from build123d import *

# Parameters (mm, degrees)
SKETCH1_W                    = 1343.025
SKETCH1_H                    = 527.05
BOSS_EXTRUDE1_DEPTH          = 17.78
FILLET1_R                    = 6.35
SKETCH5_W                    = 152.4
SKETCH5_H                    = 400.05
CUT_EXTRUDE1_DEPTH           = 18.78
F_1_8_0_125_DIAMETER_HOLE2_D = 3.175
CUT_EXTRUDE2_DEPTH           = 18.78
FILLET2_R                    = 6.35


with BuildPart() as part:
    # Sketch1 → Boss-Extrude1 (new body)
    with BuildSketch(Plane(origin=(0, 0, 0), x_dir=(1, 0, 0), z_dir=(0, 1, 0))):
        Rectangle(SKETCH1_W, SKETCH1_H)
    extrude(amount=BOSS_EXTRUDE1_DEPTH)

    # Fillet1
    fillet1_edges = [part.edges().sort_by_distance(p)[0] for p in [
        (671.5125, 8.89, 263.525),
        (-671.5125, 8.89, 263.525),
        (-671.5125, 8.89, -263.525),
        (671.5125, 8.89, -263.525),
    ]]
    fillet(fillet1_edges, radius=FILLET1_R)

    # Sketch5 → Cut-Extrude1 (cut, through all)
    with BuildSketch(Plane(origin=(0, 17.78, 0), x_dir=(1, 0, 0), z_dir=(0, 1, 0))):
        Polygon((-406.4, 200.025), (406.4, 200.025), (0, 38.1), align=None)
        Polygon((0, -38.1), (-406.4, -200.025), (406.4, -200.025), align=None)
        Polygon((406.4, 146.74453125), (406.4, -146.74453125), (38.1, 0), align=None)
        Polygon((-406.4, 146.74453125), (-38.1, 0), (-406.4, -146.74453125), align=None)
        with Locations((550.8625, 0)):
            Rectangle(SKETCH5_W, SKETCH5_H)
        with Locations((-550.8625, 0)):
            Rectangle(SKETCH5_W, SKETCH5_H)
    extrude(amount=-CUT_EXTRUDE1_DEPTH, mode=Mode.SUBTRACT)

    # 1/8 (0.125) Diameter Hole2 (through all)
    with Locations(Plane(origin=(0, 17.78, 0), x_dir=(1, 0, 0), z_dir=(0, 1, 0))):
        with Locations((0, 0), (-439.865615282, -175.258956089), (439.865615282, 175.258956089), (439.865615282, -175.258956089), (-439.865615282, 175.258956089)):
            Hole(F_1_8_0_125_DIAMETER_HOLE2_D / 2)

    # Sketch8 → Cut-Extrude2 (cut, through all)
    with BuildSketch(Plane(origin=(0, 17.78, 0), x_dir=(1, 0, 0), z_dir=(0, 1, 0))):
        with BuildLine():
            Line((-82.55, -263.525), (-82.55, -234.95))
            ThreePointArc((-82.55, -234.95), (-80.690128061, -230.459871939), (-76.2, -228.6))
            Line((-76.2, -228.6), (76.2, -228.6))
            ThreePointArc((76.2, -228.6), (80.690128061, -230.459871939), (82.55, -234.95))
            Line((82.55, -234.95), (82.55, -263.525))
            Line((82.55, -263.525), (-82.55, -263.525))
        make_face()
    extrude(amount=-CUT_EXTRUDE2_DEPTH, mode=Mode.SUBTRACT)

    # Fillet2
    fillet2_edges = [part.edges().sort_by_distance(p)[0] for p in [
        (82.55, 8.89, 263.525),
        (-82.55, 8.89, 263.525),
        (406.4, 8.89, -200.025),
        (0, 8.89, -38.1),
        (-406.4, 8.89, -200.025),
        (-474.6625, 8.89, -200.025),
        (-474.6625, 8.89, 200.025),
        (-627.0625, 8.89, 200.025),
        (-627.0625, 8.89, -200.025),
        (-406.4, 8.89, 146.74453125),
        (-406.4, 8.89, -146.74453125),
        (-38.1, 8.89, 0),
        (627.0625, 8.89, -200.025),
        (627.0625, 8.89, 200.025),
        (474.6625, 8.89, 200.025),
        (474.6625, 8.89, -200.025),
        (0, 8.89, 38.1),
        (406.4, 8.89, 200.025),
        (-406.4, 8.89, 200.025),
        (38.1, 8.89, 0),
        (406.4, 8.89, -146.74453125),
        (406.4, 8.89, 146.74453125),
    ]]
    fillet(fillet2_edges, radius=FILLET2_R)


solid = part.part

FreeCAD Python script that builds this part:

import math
import FreeCAD as App
import Part
import Sketcher
from FreeCAD import Vector
Q = App.Units.Quantity


def edges_at(feature, points):
    """Names of the edges that pass closest to the given points."""
    edges = feature.Shape.Edges
    near = lambda p: min(range(len(edges)), key=lambda i: edges[i].distToShape(Part.Vertex(*p))[0])
    return sorted({f"Edge{near(p) + 1}" for p in points})

doc = App.newDocument("Part")
body = doc.addObject("PartDesign::Body", "Body")

sketch1 = body.newObject("Sketcher::SketchObject", "Sketch")
sketch1.AttachmentSupport = (doc.getObject("XZ_Plane"), [""])
sketch1.MapMode = "FlatFace"
sketch1.addGeometry([
    Part.LineSegment(Vector(-672, -264, 0), Vector(-672, 264, 0)),
    Part.LineSegment(Vector(-672, 264, 0), Vector(672, 264, 0)),
    Part.LineSegment(Vector(672, 264, 0), Vector(672, -264, 0)),
    Part.LineSegment(Vector(672, -264, 0), Vector(-672, -264, 0)),
], False)
sketch1.addConstraint([
    Sketcher.Constraint("Coincident", 0, 2, 1, 1),
    Sketcher.Constraint("Coincident", 1, 2, 2, 1),
    Sketcher.Constraint("Coincident", 2, 2, 3, 1),
    Sketcher.Constraint("Coincident", 3, 2, 0, 1),
    Sketcher.Constraint("Vertical", 0),
    Sketcher.Constraint("Horizontal", 1),
    Sketcher.Constraint("Vertical", 2),
    Sketcher.Constraint("Horizontal", 3),
    Sketcher.Constraint("Symmetric", 0, 2, 2, 2, -1, 1),
    Sketcher.Constraint("DistanceY", 0, 1, 0, 2, Q("20.75 in")),
    Sketcher.Constraint("DistanceX", 1, 1, 1, 2, Q("52.875 in")),
])
pad1 = body.newObject("PartDesign::Pad", "Pad")
pad1.Profile = sketch1
pad1.Length = Q("0.7 in")
pad1.Reversed = True
doc.recompute()

fillet = body.newObject("PartDesign::Fillet", "Fillet")
fillet.Base = (pad1, edges_at(pad1, [
    (671.513, 8.89, 263.525),
    (-671.513, 8.89, 263.525),
    (-671.513, 8.89, -263.525),
    (671.513, 8.89, -263.525),
]))
fillet.Radius = Q("0.25 in")

sketch2 = body.newObject("Sketcher::SketchObject", "Sketch001")
sketch2.AttachmentSupport = (doc.getObject("XZ_Plane"), [""])
sketch2.MapMode = "FlatFace"
sketch2.AttachmentOffset = App.Placement(Vector(0, 0, -0.7 * 25.4), App.Rotation())
sketch2.addGeometry([
    Part.LineSegment(Vector(406, -200, 0), Vector(-406, -200, 0)),
    Part.LineSegment(Vector(-406, -200, 0), Vector(0, -38, 0)),
    Part.LineSegment(Vector(0, -38, 0), Vector(406, -200, 0)),
    Part.LineSegment(Vector(0, 38, 0), Vector(-406, 200, 0)),
    Part.LineSegment(Vector(-406, 200, 0), Vector(406, 200, 0)),
    Part.LineSegment(Vector(406, 200, 0), Vector(0, 38, 0)),
    Part.LineSegment(Vector(406, 147, 0), Vector(406, -147, 0)),
    Part.LineSegment(Vector(406, -147, 0), Vector(38, 0, 0)),
    Part.LineSegment(Vector(38, 0, 0), Vector(406, 147, 0)),
    Part.LineSegment(Vector(-38, 0, 0), Vector(-406, -147, 0)),
    Part.LineSegment(Vector(-406, -147, 0), Vector(-406, 147, 0)),
    Part.LineSegment(Vector(-406, 147, 0), Vector(-38, 0, 0)),
    Part.LineSegment(Vector(475, -200, 0), Vector(475, 200, 0)),
    Part.LineSegment(Vector(475, 200, 0), Vector(627, 200, 0)),
    Part.LineSegment(Vector(627, 200, 0), Vector(627, -200, 0)),
    Part.LineSegment(Vector(627, -200, 0), Vector(475, -200, 0)),
    Part.LineSegment(Vector(-627, -200, 0), Vector(-627, 200, 0)),
    Part.LineSegment(Vector(-627, 200, 0), Vector(-475, 200, 0)),
    Part.LineSegment(Vector(-475, 200, 0), Vector(-475, -200, 0)),
    Part.LineSegment(Vector(-475, -200, 0), Vector(-627, -200, 0)),
], False)
sketch2.addConstraint([
    Sketcher.Constraint("Coincident", 0, 2, 1, 1),
    Sketcher.Constraint("Coincident", 1, 2, 2, 1),
    Sketcher.Constraint("Coincident", 2, 2, 0, 1),
    Sketcher.Constraint("Coincident", 3, 2, 4, 1),
    Sketcher.Constraint("Coincident", 4, 2, 5, 1),
    Sketcher.Constraint("Coincident", 5, 2, 3, 1),
    Sketcher.Constraint("Coincident", 6, 2, 7, 1),
    Sketcher.Constraint("Coincident", 7, 2, 8, 1),
    Sketcher.Constraint("Coincident", 8, 2, 6, 1),
    Sketcher.Constraint("Coincident", 9, 2, 10, 1),
    Sketcher.Constraint("Coincident", 10, 2, 11, 1),
    Sketcher.Constraint("Coincident", 11, 2, 9, 1),
    Sketcher.Constraint("Coincident", 12, 2, 13, 1),
    Sketcher.Constraint("Coincident", 13, 2, 14, 1),
    Sketcher.Constraint("Coincident", 14, 2, 15, 1),
    Sketcher.Constraint("Coincident", 15, 2, 12, 1),
    Sketcher.Constraint("Coincident", 16, 2, 17, 1),
    Sketcher.Constraint("Coincident", 17, 2, 18, 1),
    Sketcher.Constraint("Coincident", 18, 2, 19, 1),
    Sketcher.Constraint("Coincident", 19, 2, 16, 1),
    Sketcher.Constraint("Horizontal", 0),
    Sketcher.Constraint("Horizontal", 4),
    Sketcher.Constraint("Vertical", 6),
    Sketcher.Constraint("Vertical", 10),
    Sketcher.Constraint("Vertical", 12),
    Sketcher.Constraint("Horizontal", 13),
    Sketcher.Constraint("Vertical", 14),
    Sketcher.Constraint("Horizontal", 15),
    Sketcher.Constraint("Vertical", 16),
    Sketcher.Constraint("Horizontal", 17),
    Sketcher.Constraint("Vertical", 18),
    Sketcher.Constraint("Horizontal", 19),
    Sketcher.Constraint("Symmetric", 2, 2, 3, 2, -1, 1),
    Sketcher.Constraint("Symmetric", 1, 2, 5, 2, -1, 1),
    Sketcher.Constraint("Symmetric", 8, 2, 9, 2, -1, 1),
    Sketcher.Constraint("Symmetric", 7, 2, 11, 2, -1, 1),
    Sketcher.Constraint("Symmetric", 14, 2, 16, 2, -1, 1),
    Sketcher.Constraint("Symmetric", 12, 2, 18, 2, -1, 1),
    Sketcher.Constraint("PointOnObject", 1, 2, -2),
    Sketcher.Constraint("PointOnObject", 7, 2, -1),
    Sketcher.Constraint("Parallel", 1, 5),
    Sketcher.Constraint("Parallel", 3, 7),
    Sketcher.Constraint("Parallel", 5, 8),
    Sketcher.Constraint("Parallel", 7, 11),
    Sketcher.Constraint("Horizontal", 6, 2, 9, 2),
    Sketcher.Constraint("Horizontal", 4, 2, 12, 2),
    Sketcher.Constraint("Horizontal", 2, 2, 14, 2),
    Sketcher.Constraint("Vertical", 4, 2, 6, 2),
    Sketcher.Constraint("DistanceX", 0, 2, 0, 1, Q("32 in")),
    Sketcher.Constraint("DistanceX", 13, 1, 13, 2, Q("6 in")),
    Sketcher.Constraint("DistanceY", 1, 2, 5, 2, Q("3 in")),
    Sketcher.Constraint("DistanceX", 11, 2, 7, 2, Q("3 in")),
    Sketcher.Constraint("DistanceY", 12, 1, 12, 2, Q("15.75 in")),
    Sketcher.Constraint("DistanceX", -1, 1, 12, 2, Q("18.6875 in")),
])
pocket1 = body.newObject("PartDesign::Pocket", "Pocket")
pocket1.Profile = sketch2
pocket1.Type = "ThroughAll"
pocket1.Reversed = True

sketch3 = body.newObject("Sketcher::SketchObject", "Sketch002")
sketch3.AttachmentSupport = (doc.getObject("XZ_Plane"), [""])
sketch3.MapMode = "FlatFace"
sketch3.AttachmentOffset = App.Placement(Vector(0, 0, -0.7 * 25.4), App.Rotation())
sketch3.addGeometry([
    Part.Circle(Vector(0, 0, 0), Vector(0, 0, 1), 1.6),
    Part.Circle(Vector(-439.9, 175.3, 0), Vector(0, 0, 1), 1.6),
    Part.Circle(Vector(439.9, -175.3, 0), Vector(0, 0, 1), 1.6),
    Part.Circle(Vector(439.9, 175.3, 0), Vector(0, 0, 1), 1.6),
    Part.Circle(Vector(-439.9, -175.3, 0), Vector(0, 0, 1), 1.6),
], False)
sketch3.addConstraint([
    Sketcher.Constraint("Coincident", 0, 3, -1, 1),
    Sketcher.Constraint("Equal", 0, 1),
    Sketcher.Constraint("Equal", 1, 2),
    Sketcher.Constraint("Equal", 2, 3),
    Sketcher.Constraint("Equal", 3, 4),
    Sketcher.Constraint("Symmetric", 1, 3, 2, 3, -1, 1),
    Sketcher.Constraint("Symmetric", 3, 3, 4, 3, -1, 1),
    Sketcher.Constraint("Symmetric", 1, 3, 3, 3, -2),
    Sketcher.Constraint("Diameter", 0, Q("0.125 in")),
    Sketcher.Constraint("DistanceX", 1, 3, 2, 3, 879.731231),
    Sketcher.Constraint("DistanceY", -1, 1, 1, 3, 175.258956),
])
doc.recompute()
hole = body.newObject("PartDesign::Hole", "Hole")
hole.Profile = sketch3
hole.ThreadType = "None"
hole.Diameter = Q("0.125 in")
hole.DepthType = "ThroughAll"
hole.Reversed = True

sketch4 = body.newObject("Sketcher::SketchObject", "Sketch003")
sketch4.AttachmentSupport = (doc.getObject("XZ_Plane"), [""])
sketch4.MapMode = "FlatFace"
sketch4.AttachmentOffset = App.Placement(Vector(0, 0, -0.7 * 25.4), App.Rotation())
sketch4.addGeometry([
    Part.LineSegment(Vector(-83, 235, 0), Vector(-83, 264, 0)),
    Part.LineSegment(Vector(-83, 264, 0), Vector(83, 264, 0)),
    Part.LineSegment(Vector(83, 264, 0), Vector(83, 235, 0)),
    Part.ArcOfCircle(Part.Circle(Vector(76, 235, 0), Vector(0, 0, 1), 6), math.radians(-90), math.radians(0)),
    Part.LineSegment(Vector(76, 229, 0), Vector(-76, 229, 0)),
    Part.ArcOfCircle(Part.Circle(Vector(-76, 235, 0), Vector(0, 0, 1), 6), math.radians(180), math.radians(270)),
], False)
sketch4.addConstraint([
    Sketcher.Constraint("Coincident", 0, 2, 1, 1),
    Sketcher.Constraint("Coincident", 1, 2, 2, 1),
    Sketcher.Constraint("Tangent", 2, 2, 3, 2),
    Sketcher.Constraint("Tangent", 3, 1, 4, 1),
    Sketcher.Constraint("Tangent", 4, 2, 5, 2),
    Sketcher.Constraint("Tangent", 5, 1, 0, 1),
    Sketcher.Constraint("Vertical", 0),
    Sketcher.Constraint("Horizontal", 1),
    Sketcher.Constraint("Vertical", 2),
    Sketcher.Constraint("Horizontal", 4),
    Sketcher.Constraint("Equal", 3, 5),
    Sketcher.Constraint("DistanceX", 4, 2, 4, 1, Q("6 in")),
    Sketcher.Constraint("Radius", 3, Q("0.25 in")),
    Sketcher.Constraint("DistanceX", -1, 1, 3, 3, Q("3 in")),
    Sketcher.Constraint("DistanceY", -1, 1, 3, 1, Q("9 in")),
    Sketcher.Constraint("DistanceY", 0, 1, 0, 2, Q("1.125 in")),
])
pocket2 = body.newObject("PartDesign::Pocket", "Pocket001")
pocket2.Profile = sketch4
pocket2.Type = "ThroughAll"
pocket2.Reversed = True
doc.recompute()

fillet2 = body.newObject("PartDesign::Fillet", "Fillet001")
fillet2.Base = (pocket2, edges_at(pocket2, [
    (82.55, 8.89, 263.525),
    (-82.55, 8.89, 263.525),
    (406.4, 8.89, -200.025),
    (0, 8.89, -38.1),
    (-406.4, 8.89, -200.025),
    (-474.663, 8.89, -200.025),
    (-474.663, 8.89, 200.025),
    (-627.062, 8.89, 200.025),
    (-627.062, 8.89, -200.025),
    (-406.4, 8.89, 146.745),
    (-406.4, 8.89, -146.745),
    (-38.1, 8.89, 0),
    (627.062, 8.89, -200.025),
    (627.062, 8.89, 200.025),
    (474.663, 8.89, 200.025),
    (474.663, 8.89, -200.025),
    (0, 8.89, 38.1),
    (406.4, 8.89, 200.025),
    (-406.4, 8.89, 200.025),
    (38.1, 8.89, 0),
    (406.4, 8.89, -146.745),
    (406.4, 8.89, 146.745),
]))
fillet2.Radius = Q("0.25 in")

doc.recompute()
